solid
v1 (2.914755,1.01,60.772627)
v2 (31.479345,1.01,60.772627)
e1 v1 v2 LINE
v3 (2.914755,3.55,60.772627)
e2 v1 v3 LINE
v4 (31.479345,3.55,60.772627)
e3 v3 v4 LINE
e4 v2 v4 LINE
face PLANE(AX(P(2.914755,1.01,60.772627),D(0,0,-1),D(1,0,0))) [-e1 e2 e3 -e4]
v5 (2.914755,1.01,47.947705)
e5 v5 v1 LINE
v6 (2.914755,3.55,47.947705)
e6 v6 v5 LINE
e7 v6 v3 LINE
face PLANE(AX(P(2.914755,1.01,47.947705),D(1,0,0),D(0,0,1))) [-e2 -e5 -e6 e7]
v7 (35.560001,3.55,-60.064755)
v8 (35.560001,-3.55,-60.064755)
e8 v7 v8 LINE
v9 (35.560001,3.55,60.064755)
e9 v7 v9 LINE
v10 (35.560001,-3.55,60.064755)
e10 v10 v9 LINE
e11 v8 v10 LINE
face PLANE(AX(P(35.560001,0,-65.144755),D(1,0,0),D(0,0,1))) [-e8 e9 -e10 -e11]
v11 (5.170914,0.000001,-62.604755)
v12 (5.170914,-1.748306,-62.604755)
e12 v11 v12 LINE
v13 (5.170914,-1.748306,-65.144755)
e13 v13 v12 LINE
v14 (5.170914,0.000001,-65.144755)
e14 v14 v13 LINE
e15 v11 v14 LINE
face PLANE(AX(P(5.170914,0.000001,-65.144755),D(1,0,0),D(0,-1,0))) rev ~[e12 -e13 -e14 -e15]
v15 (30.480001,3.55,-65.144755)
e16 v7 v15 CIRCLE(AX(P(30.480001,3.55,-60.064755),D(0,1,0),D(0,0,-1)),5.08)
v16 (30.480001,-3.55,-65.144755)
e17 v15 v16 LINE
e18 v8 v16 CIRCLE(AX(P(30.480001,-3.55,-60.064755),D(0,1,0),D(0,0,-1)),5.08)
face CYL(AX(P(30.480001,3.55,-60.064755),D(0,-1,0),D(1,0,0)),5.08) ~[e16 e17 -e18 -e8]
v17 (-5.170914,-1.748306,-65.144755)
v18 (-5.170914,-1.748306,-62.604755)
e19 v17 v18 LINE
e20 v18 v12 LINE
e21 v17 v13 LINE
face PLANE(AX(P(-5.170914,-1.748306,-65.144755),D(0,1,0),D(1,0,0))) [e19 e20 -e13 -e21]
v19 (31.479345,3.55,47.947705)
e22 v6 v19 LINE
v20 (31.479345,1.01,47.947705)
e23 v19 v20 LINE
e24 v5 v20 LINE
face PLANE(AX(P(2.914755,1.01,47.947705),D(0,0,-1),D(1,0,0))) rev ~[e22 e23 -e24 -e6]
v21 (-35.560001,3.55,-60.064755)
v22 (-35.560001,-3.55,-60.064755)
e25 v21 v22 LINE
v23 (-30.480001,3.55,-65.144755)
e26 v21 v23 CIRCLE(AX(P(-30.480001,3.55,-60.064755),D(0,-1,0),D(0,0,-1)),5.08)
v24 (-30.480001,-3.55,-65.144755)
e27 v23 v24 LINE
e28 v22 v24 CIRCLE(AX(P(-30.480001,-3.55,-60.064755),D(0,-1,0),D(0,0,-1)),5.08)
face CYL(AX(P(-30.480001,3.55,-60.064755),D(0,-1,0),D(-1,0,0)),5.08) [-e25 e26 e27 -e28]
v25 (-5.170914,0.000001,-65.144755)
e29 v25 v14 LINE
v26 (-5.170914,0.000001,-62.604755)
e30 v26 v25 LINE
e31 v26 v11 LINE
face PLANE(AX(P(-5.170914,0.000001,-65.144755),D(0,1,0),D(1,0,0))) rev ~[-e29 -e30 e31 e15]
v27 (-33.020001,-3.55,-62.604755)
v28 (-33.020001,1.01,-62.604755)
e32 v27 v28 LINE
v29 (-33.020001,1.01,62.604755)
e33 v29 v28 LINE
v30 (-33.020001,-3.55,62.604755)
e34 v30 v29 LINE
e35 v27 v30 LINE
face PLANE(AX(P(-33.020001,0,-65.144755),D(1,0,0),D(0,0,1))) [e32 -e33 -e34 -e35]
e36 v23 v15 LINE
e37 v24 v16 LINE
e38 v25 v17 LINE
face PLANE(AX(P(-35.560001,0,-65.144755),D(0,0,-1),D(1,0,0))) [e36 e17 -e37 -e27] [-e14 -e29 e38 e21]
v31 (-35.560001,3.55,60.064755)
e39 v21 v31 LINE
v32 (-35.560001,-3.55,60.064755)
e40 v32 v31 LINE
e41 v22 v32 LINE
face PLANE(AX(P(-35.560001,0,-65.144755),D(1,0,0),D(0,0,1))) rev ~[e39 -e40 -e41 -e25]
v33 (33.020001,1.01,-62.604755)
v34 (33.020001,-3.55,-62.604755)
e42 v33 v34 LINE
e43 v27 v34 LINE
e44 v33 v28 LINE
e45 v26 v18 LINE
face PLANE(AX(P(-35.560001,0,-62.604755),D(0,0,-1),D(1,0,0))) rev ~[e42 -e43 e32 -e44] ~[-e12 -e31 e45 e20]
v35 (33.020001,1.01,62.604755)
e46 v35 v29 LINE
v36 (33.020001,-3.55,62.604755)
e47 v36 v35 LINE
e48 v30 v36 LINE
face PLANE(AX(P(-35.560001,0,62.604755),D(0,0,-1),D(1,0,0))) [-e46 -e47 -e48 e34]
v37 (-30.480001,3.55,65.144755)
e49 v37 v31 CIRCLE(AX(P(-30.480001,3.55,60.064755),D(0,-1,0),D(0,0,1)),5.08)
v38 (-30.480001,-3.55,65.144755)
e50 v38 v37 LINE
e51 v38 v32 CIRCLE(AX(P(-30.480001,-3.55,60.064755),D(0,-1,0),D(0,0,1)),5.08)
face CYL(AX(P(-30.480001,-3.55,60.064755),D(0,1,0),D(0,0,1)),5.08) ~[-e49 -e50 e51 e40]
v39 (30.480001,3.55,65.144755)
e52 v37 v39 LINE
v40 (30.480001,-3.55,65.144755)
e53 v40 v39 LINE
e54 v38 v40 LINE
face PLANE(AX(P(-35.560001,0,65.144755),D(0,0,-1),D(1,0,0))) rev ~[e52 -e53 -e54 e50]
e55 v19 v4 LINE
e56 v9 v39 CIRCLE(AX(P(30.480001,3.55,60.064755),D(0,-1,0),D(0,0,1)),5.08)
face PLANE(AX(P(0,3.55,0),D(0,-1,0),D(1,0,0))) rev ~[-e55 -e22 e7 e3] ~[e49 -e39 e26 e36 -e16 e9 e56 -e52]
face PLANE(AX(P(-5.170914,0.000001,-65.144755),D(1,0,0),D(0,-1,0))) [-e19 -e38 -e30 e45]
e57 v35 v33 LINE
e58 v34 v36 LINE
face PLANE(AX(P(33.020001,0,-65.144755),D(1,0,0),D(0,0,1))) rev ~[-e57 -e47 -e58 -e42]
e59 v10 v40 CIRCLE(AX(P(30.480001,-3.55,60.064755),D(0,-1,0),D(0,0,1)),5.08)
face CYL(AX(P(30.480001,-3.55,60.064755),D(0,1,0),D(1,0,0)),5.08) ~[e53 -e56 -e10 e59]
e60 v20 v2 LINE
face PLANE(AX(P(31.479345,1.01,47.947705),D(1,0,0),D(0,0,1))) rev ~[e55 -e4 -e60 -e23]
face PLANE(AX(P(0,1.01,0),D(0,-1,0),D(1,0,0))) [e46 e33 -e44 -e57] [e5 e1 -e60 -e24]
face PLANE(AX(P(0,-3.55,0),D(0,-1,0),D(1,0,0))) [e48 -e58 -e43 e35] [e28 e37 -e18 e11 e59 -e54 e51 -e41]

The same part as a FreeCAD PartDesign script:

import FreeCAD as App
import Part
import Sketcher

V = App.Vector
Q = App.Units.Quantity


def edges_at(feature, points):
    """Names of the edges that pass closest to the given points."""
    edges = feature.Shape.Edges
    near = lambda p: min(range(len(edges)), key=lambda i: edges[i].distToShape(Part.Vertex(*p))[0])
    return sorted({f"Edge{near(p) + 1}" for p in points})


def faces_at(feature, points):
    """Names of the faces that lie closest to the given points."""
    faces = feature.Shape.Faces
    near = lambda p: min(range(len(faces)), key=lambda i: faces[i].distToShape(Part.Vertex(*p))[0])
    return sorted({f"Face{near(p) + 1}" for p in points})

doc = App.newDocument("Part")
params = doc.addObject("Spreadsheet::Sheet", "Params")
for row, (alias, value) in enumerate([
    ("sketch1_width", "2.8000001 in"),
    ("pad1_length", "7.1 mm"),
    ("thickness_wall", "0.1 in"),
    ("fillet_radius", "0.2 in"),
    ("pocket1_length", "25 mm"),
    ("pocket2_length", "25 mm"),
], start=1):
    params.set(f"A{row}", alias)
    params.set(f"B{row}", "=" + value)
    params.setAlias(f"B{row}", alias)

body = doc.addObject("PartDesign::Body", "Body")

# Sketch on XZ plane
sketch1 = body.newObject("Sketcher::SketchObject", "Sketch")
sketch1.AttachmentSupport = (doc.getObject("XZ_Plane"), [""])
sketch1.MapMode = "FlatFace"
sketch1.addGeometry([
    Part.LineSegment(V(-36, 65, 0), V(-36, -65, 0)),
    Part.LineSegment(V(-36, -65, 0), V(36, -65, 0)),
    Part.LineSegment(V(36, -65, 0), V(36, 65, 0)),
    Part.LineSegment(V(36, 65, 0), V(-36, 65, 0)),
], False)
sketch1.addConstraint([
    Sketcher.Constraint("Coincident", 0, 2, 1, 1),
    Sketcher.Constraint("Coincident", 1, 2, 2, 1),
    Sketcher.Constraint("Coincident", 2, 2, 3, 1),
    Sketcher.Constraint("Coincident", 3, 2, 0, 1),
    Sketcher.Constraint("Vertical", 0),
    Sketcher.Constraint("Horizontal", 1),
    Sketcher.Constraint("Vertical", 2),
    Sketcher.Constraint("Horizontal", 3),
    Sketcher.Constraint("Symmetric", 0, 2, 2, 2, -1, 1),
    Sketcher.Constraint("DistanceX", 1, 1, 1, 2, Q("2.8000001 in")),
    Sketcher.Constraint("DistanceY", 0, 2, 0, 1, 130.28951),
])
sketch1.setExpression("Constraints[9]", "Params.sketch1_width")
pad1 = body.newObject("PartDesign::Pad", "Pad")
pad1.Profile = sketch1
pad1.setExpression("Length", "Params.pad1_length")
pad1.Midplane = True
doc.recompute()

thickness = body.newObject("PartDesign::Thickness", "Thickness")
thickness.Base = (pad1, faces_at(pad1, [(0, -3.55, 0)]))
thickness.setExpression("Value", "Params.thickness_wall")
thickness.Reversed = True
thickness.Join = "Arc"
doc.recompute()

fillet = body.newObject("PartDesign::Fillet", "Fillet")
fillet.Base = (thickness, edges_at(thickness, [
    (35.56, 0, 65.145),
    (-35.56, 0, 65.145),
    (35.56, 0, -65.145),
    (-35.56, 0, -65.145),
]))
fillet.setExpression("Radius", "Params.fillet_radius")

# Sketch on XZ plane
sketch2 = body.newObject("Sketcher::SketchObject", "Sketch001")
sketch2.AttachmentSupport = (doc.getObject("XZ_Plane"), [""])
sketch2.MapMode = "FlatFace"
sketch2.AttachmentOffset = App.Placement(V(0, 0, -1.01), App.Rotation())
sketch2.addGeometry([
    Part.LineSegment(V(3, 61, 0), V(3, 48, 0)),
    Part.LineSegment(V(3, 48, 0), V(31, 48, 0)),
    Part.LineSegment(V(31, 48, 0), V(31, 61, 0)),
    Part.LineSegment(V(31, 61, 0), V(3, 61, 0)),
], False)
sketch2.addConstraint([
    Sketcher.Constraint("Coincident", 0, 2, 1, 1),
    Sketcher.Constraint("Coincident", 1, 2, 2, 1),
    Sketcher.Constraint("Coincident", 2, 2, 3, 1),
    Sketcher.Constraint("Coincident", 3, 2, 0, 1),
    Sketcher.Constraint("Vertical", 0),
    Sketcher.Constraint("Horizontal", 1),
    Sketcher.Constraint("Vertical", 2),
    Sketcher.Constraint("Horizontal", 3),
    Sketcher.Constraint("DistanceX", 1, 1, 1, 2, 28.56459),
    Sketcher.Constraint("DistanceY", 0, 2, 0, 1, 12.824923),
    Sketcher.Constraint("DistanceX", -1, 1, 0, 2, 2.914755),
    Sketcher.Constraint("DistanceY", -1, 1, 0, 2, 47.947705),
])
pocket1 = body.newObject("PartDesign::Pocket", "Pocket")
pocket1.Profile = sketch2
pocket1.setExpression("Length", "Params.pocket1_length")
pocket1.Midplane = True

# Sketch on XY plane
sketch3 = body.newObject("Sketcher::SketchObject", "Sketch002")
sketch3.AttachmentSupport = (doc.getObject("XY_Plane"), [""])
sketch3.MapMode = "FlatFace"
sketch3.AttachmentOffset = App.Placement(V(0, 0, -65.144755), App.Rotation())
sketch3.addGeometry([
    Part.LineSegment(V(-5.2, -1.7, 0), V(-5.2, 0, 0)),
    Part.LineSegment(V(-5.2, 0, 0), V(5.2, 0, 0)),
    Part.LineSegment(V(5.2, 0, 0), V(5.2, -1.7, 0)),
    Part.LineSegment(V(5.2, -1.7, 0), V(-5.2, -1.7, 0)),
], False)
sketch3.addConstraint([
    Sketcher.Constraint("Coincident", 0, 2, 1, 1),
    Sketcher.Constraint("Coincident", 1, 2, 2, 1),
    Sketcher.Constraint("Coincident", 2, 2, 3, 1),
    Sketcher.Constraint("Coincident", 3, 2, 0, 1),
    Sketcher.Constraint("Vertical", 0),
    Sketcher.Constraint("Horizontal", 1),
    Sketcher.Constraint("Vertical", 2),
    Sketcher.Constraint("Horizontal", 3),
    Sketcher.Constraint("Symmetric", 0, 2, 1, 2, -1, 1),
    Sketcher.Constraint("DistanceX", 1, 1, 1, 2, 10.341828),
    Sketcher.Constraint("DistanceY", 0, 1, 0, 2, 1.748307),
])
pocket2 = body.newObject("PartDesign::Pocket", "Pocket001")
pocket2.Profile = sketch3
pocket2.setExpression("Length", "Params.pocket2_length")
pocket2.Midplane = True

doc.recompute()
